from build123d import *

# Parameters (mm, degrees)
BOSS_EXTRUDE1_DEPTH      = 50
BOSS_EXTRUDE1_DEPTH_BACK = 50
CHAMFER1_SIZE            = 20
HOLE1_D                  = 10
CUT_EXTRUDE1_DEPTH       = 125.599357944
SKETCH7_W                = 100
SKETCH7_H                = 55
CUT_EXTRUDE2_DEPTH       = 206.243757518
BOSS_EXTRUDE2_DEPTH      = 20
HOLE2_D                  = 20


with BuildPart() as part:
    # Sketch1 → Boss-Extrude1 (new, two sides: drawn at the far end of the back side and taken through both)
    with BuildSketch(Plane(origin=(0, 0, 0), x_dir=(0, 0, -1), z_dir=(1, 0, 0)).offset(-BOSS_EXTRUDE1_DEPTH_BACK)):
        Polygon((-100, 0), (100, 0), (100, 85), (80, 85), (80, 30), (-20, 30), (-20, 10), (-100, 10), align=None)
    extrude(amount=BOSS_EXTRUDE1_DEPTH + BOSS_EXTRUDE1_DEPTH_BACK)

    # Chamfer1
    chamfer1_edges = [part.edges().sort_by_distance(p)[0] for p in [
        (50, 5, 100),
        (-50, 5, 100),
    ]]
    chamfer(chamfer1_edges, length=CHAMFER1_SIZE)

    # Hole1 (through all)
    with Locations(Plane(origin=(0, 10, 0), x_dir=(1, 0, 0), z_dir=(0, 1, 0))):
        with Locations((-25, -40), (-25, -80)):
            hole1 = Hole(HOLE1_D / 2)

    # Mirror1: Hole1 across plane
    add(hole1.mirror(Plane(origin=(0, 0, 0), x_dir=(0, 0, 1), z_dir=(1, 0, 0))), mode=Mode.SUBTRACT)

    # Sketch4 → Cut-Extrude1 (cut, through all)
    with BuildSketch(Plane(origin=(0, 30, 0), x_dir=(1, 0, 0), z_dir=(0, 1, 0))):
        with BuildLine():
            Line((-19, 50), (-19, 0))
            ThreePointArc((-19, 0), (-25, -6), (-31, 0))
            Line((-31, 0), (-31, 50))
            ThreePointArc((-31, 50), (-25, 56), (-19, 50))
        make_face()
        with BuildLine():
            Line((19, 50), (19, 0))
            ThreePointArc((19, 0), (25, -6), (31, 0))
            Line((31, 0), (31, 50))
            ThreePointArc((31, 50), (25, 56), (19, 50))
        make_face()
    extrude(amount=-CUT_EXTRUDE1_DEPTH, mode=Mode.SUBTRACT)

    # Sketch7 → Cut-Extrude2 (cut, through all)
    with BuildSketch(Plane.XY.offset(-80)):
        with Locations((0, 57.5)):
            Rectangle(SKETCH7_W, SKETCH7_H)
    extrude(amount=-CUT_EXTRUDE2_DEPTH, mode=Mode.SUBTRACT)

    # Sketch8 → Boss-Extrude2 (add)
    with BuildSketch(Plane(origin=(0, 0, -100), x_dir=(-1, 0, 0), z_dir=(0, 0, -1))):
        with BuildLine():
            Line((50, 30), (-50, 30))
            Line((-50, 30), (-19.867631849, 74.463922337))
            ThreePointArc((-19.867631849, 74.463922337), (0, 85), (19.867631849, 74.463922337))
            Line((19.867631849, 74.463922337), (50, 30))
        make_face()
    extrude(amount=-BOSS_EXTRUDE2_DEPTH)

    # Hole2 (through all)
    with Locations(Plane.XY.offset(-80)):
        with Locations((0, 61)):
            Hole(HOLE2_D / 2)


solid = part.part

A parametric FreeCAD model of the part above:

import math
import FreeCAD as App
import Part
import Sketcher
from FreeCAD import Vector


def edges_at(feature, points):
    """Names of the edges that pass closest to the given points."""
    edges = feature.Shape.Edges
    near = lambda p: min(range(len(edges)), key=lambda i: edges[i].distToShape(Part.Vertex(*p))[0])
    return sorted({f"Edge{near(p) + 1}" for p in points})

doc = App.newDocument("Part")
body = doc.addObject("PartDesign::Body", "Body")

# Sketch on YZ plane
sketch1 = doc.addObject("Sketcher::SketchObject", "Sketch")
body.addObject(sketch1)
sketch1.AttachmentSupport = (doc.YZ_Plane, [""])
sketch1.MapMode = "FlatFace"
sketch1.addGeometry([
    Part.LineSegment(Vector(0, 100, 0), Vector(0, -100, 0)),  # 0
    Part.LineSegment(Vector(0, -100, 0), Vector(85, -100, 0)),  # 1
    Part.LineSegment(Vector(85, -100, 0), Vector(85, -80, 0)),  # 2
    Part.LineSegment(Vector(85, -80, 0), Vector(30, -80, 0)),  # 3
    Part.LineSegment(Vector(30, -80, 0), Vector(30, 20, 0)),  # 4
    Part.LineSegment(Vector(30, 20, 0), Vector(10, 20, 0)),  # 5
    Part.LineSegment(Vector(10, 20, 0), Vector(10, 100, 0)),  # 6
    Part.LineSegment(Vector(10, 100, 0), Vector(0, 100, 0)),  # 7
], False)
sketch1.addConstraint([
    Sketcher.Constraint("Coincident", 0, 2, 1, 1),
    Sketcher.Constraint("Coincident", 1, 2, 2, 1),
    Sketcher.Constraint("Coincident", 2, 2, 3, 1),
    Sketcher.Constraint("Coincident", 3, 2, 4, 1),
    Sketcher.Constraint("Coincident", 4, 2, 5, 1),
    Sketcher.Constraint("Coincident", 5, 2, 6, 1),
    Sketcher.Constraint("Coincident", 6, 2, 7, 1),
    Sketcher.Constraint("Coincident", 7, 2, 0, 1),
    Sketcher.Constraint("Vertical", 0),
    Sketcher.Constraint("Horizontal", 1),
    Sketcher.Constraint("Vertical", 2),
    Sketcher.Constraint("Horizontal", 3),
    Sketcher.Constraint("Vertical", 4),
    Sketcher.Constraint("Horizontal", 5),
    Sketcher.Constraint("Vertical", 6),
    Sketcher.Constraint("Horizontal", 7),
    Sketcher.Constraint("Symmetric", 0, 2, 7, 2, -1, 1),
    Sketcher.Constraint("Equal", 5, 2),
    Sketcher.Constraint("DistanceX", 1, 1, 1, 2, 85.0),
    Sketcher.Constraint("DistanceX", 3, 2, 3, 1, 55.0),
    Sketcher.Constraint("DistanceX", 5, 2, 5, 1, 20.0),
    Sketcher.Constraint("DistanceY", 0, 2, 0, 1, 200.0),
    Sketcher.Constraint("DistanceY", 4, 1, 4, 2, 100.0),
])
pad1 = doc.addObject("PartDesign::Pad", "Pad")
body.addObject(pad1)
pad1.Profile = sketch1
pad1.Type = "TwoLengths"
pad1.Length = 50
pad1.Length2 = 50
doc.recompute()

chamfer = doc.addObject("PartDesign::Chamfer", "Chamfer")
body.addObject(chamfer)
chamfer.Base = (pad1, edges_at(pad1, [(50, 5, 100), (-50, 5, 100)]))
chamfer.Size = 20

# Sketch on XZ plane
sketch2 = doc.addObject("Sketcher::SketchObject", "Sketch001")
body.addObject(sketch2)
sketch2.AttachmentSupport = (doc.XZ_Plane, [""])
sketch2.MapMode = "FlatFace"
sketch2.AttachmentOffset = App.Placement(Vector(0, 0, -10), App.Rotation())
sketch2.addGeometry([
    Part.Circle(Vector(-25, 40, 0), Vector(0, 0, 1), 5),
    Part.Circle(Vector(-25, 80, 0), Vector(0, 0, 1), 5),
], False)
sketch2.addConstraint([
    Sketcher.Constraint("Equal", 0, 1),
    Sketcher.Constraint("Vertical", 0, 3, 1, 3),
    Sketcher.Constraint("Diameter", 0, 10.0),
    Sketcher.Constraint("DistanceX", 0, 3, -1, 1, 25.0),
    Sketcher.Constraint("DistanceY", -1, 1, 0, 3, 40.0),
    Sketcher.Constraint("DistanceY", -1, 1, 1, 3, 80.0),
])
doc.recompute()
hole = doc.addObject("PartDesign::Hole", "Hole")
body.addObject(hole)
hole.Profile = sketch2
hole.ThreadType = "None"
hole.Diameter = 10
hole.DepthType = "ThroughAll"
hole.Reversed = True
doc.recompute()

mirrored = doc.addObject("PartDesign::Mirrored", "Mirrored")
body.addObject(mirrored)
mirrored.Originals = [hole]
mirrored.MirrorPlane = (doc.YZ_Plane, [""])
body.Tip = mirrored

# Sketch on XZ plane
sketch3 = doc.addObject("Sketcher::SketchObject", "Sketch002")
body.addObject(sketch3)
sketch3.AttachmentSupport = (doc.XZ_Plane, [""])
sketch3.MapMode = "FlatFace"
sketch3.AttachmentOffset = App.Placement(Vector(0, 0, -30), App.Rotation())
sketch3.addGeometry([
    Part.LineSegment(Vector(-19, 0, 0), Vector(-19, -50, 0)),  # 0
    Part.ArcOfCircle(Part.Circle(Vector(-25, -50, 0), Vector(0, 0, 1), 6), math.radians(180), math.radians(360)),  # 1
    Part.LineSegment(Vector(-31, -50, 0), Vector(-31, 0, 0)),  # 2
    Part.ArcOfCircle(Part.Circle(Vector(-25, 0, 0), Vector(0, 0, 1), 6), math.radians(0), math.radians(180)),  # 3
    Part.LineSegment(Vector(19, -50, 0), Vector(19, 0, 0)),  # 4
    Part.ArcOfCircle(Part.Circle(Vector(25, 0, 0), Vector(0, 0, 1), 6), math.radians(0), math.radians(180)),  # 5
    Part.LineSegment(Vector(31, 0, 0), Vector(31, -50, 0)),  # 6
    Part.ArcOfCircle(Part.Circle(Vector(25, -50, 0), Vector(0, 0, 1), 6), math.radians(180), math.radians(360)),  # 7
], False)
sketch3.addConstraint([
    Sketcher.Constraint("Tangent", 0, 2, 1, 2),
    Sketcher.Constraint("Tangent", 1, 1, 2, 1),
    Sketcher.Constraint("Tangent", 2, 2, 3, 2),
    Sketcher.Constraint("Tangent", 3, 1, 0, 1),
    Sketcher.Constraint("Tangent", 4, 2, 5, 2),
    Sketcher.Constraint("Tangent", 5, 1, 6, 1),
    Sketcher.Constraint("Tangent", 6, 2, 7, 2),
    Sketcher.Constraint("Tangent", 7, 1, 4, 1),
    Sketcher.Constraint("Vertical", 0),
    Sketcher.Constraint("Vertical", 2),
    Sketcher.Constraint("Vertical", 4),
    Sketcher.Constraint("Vertical", 6),
    Sketcher.Constraint("Equal", 3, 5),
    Sketcher.Constraint("Symmetric", 3, 3, 5, 3, -1, 1),
    Sketcher.Constraint("PointOnObject", 3, 3, -1),
    Sketcher.Constraint("Horizontal", 1, 3, 7, 3),
    Sketcher.Constraint("Radius", 1, 6.0),
    Sketcher.Constraint("DistanceY", 0, 2, 0, 1, 50.0),
    Sketcher.Constraint("DistanceX", 1, 3, -1, 1, 25.0),
])
pocket1 = doc.addObject("PartDesign::Pocket", "Pocket")
body.addObject(pocket1)
pocket1.Profile = sketch3
pocket1.Type = "ThroughAll"
pocket1.Reversed = True

# Sketch on XY plane
sketch4 = doc.addObject("Sketcher::SketchObject", "Sketch003")
body.addObject(sketch4)
sketch4.AttachmentSupport = (doc.XY_Plane, [""])
sketch4.MapMode = "FlatFace"
sketch4.AttachmentOffset = App.Placement(Vector(0, 0, -80), App.Rotation())
sketch4.addGeometry([
    Part.LineSegment(Vector(-50, 85, 0), Vector(-50, 30, 0)),
    Part.LineSegment(Vector(-50, 30, 0), Vector(50, 30, 0)),
    Part.LineSegment(Vector(50, 30, 0), Vector(50, 85, 0)),
    Part.LineSegment(Vector(50, 85, 0), Vector(-50, 85, 0)),
], False)
sketch4.addConstraint([
    Sketcher.Constraint("Coincident", 0, 2, 1, 1),
    Sketcher.Constraint("Coincident", 1, 2, 2, 1),
    Sketcher.Constraint("Coincident", 2, 2, 3, 1),
    Sketcher.Constraint("Coincident", 3, 2, 0, 1),
    Sketcher.Constraint("Vertical", 0),
    Sketcher.Constraint("Horizontal", 1),
    Sketcher.Constraint("Vertical", 2),
    Sketcher.Constraint("Horizontal", 3),
    Sketcher.Constraint("DistanceX", 1, 1, 1, 2, 100.0),
    Sketcher.Constraint("DistanceY", 0, 2, 0, 1, 55.0),
    Sketcher.Constraint("DistanceX", 0, 2, -1, 1, 50.0),
    Sketcher.Constraint("DistanceY", -1, 1, 0, 2, 30.0),
])
pocket2 = doc.addObject("PartDesign::Pocket", "Pocket001")
body.addObject(pocket2)
pocket2.Profile = sketch4
pocket2.Type = "ThroughAll"

# Sketch on XY plane
sketch5 = doc.addObject("Sketcher::SketchObject", "Sketch004")
body.addObject(sketch5)
sketch5.AttachmentSupport = (doc.XY_Plane, [""])
sketch5.MapMode = "FlatFace"
sketch5.AttachmentOffset = App.Placement(Vector(0, 0, -100), App.Rotation())
sketch5.addGeometry([
    Part.LineSegment(Vector(50, 30, 0), Vector(-50, 30, 0)),
    Part.LineSegment(Vector(-50, 30, 0), Vector(-19.867632, 74.463922, 0)),
    Part.ArcOfCircle(Part.Circle(Vector(0, 61, 0), Vector(0, 0, 1), 24), math.radians(34.124759), math.radians(145.875241)),
    Part.LineSegment(Vector(19.867632, 74.463922, 0), Vector(50, 30, 0)),
], False)
sketch5.addConstraint([
    Sketcher.Constraint("Coincident", 0, 2, 1, 1),
    Sketcher.Constraint("Tangent", 1, 2, 2, 2),
    Sketcher.Constraint("Tangent", 2, 1, 3, 1),
    Sketcher.Constraint("Coincident", 3, 2, 0, 1),
    Sketcher.Constraint("Horizontal", 0),
    Sketcher.Constraint("Symmetric", 1, 2, 2, 1, -2),
    Sketcher.Constraint("Radius", 2, 24.0),
    Sketcher.Constraint("DistanceX", 0, 2, 0, 1, 100.0),
    Sketcher.Constraint("DistanceY", -1, 1, 2, 3, 61.0),
    Sketcher.Constraint("DistanceY", -1, 1, 0, 2, 30.0),
])
pad2 = doc.addObject("PartDesign::Pad", "Pad001")
body.addObject(pad2)
pad2.Profile = sketch5
pad2.Length = 20

# Sketch on XY plane
sketch6 = doc.addObject("Sketcher::SketchObject", "Sketch005")
body.addObject(sketch6)
sketch6.AttachmentSupport = (doc.XY_Plane, [""])
sketch6.MapMode = "FlatFace"
sketch6.AttachmentOffset = App.Placement(Vector(0, 0, -80), App.Rotation())
sketch6.addGeometry(Part.Circle(Vector(0, 61, 0), Vector(0, 0, 1), 10), False)
sketch6.addConstraint([
    Sketcher.Constraint("PointOnObject", 0, 3, -2),
    Sketcher.Constraint("Diameter", 0, 20.0),
    Sketcher.Constraint("DistanceY", -1, 1, 0, 3, 61.0),
])
doc.recompute()
hole2 = doc.addObject("PartDesign::Hole", "Hole001")
body.addObject(hole2)
hole2.Profile = sketch6
hole2.ThreadType = "None"
hole2.Diameter = 20
hole2.DepthType = "ThroughAll"

doc.recompute()
